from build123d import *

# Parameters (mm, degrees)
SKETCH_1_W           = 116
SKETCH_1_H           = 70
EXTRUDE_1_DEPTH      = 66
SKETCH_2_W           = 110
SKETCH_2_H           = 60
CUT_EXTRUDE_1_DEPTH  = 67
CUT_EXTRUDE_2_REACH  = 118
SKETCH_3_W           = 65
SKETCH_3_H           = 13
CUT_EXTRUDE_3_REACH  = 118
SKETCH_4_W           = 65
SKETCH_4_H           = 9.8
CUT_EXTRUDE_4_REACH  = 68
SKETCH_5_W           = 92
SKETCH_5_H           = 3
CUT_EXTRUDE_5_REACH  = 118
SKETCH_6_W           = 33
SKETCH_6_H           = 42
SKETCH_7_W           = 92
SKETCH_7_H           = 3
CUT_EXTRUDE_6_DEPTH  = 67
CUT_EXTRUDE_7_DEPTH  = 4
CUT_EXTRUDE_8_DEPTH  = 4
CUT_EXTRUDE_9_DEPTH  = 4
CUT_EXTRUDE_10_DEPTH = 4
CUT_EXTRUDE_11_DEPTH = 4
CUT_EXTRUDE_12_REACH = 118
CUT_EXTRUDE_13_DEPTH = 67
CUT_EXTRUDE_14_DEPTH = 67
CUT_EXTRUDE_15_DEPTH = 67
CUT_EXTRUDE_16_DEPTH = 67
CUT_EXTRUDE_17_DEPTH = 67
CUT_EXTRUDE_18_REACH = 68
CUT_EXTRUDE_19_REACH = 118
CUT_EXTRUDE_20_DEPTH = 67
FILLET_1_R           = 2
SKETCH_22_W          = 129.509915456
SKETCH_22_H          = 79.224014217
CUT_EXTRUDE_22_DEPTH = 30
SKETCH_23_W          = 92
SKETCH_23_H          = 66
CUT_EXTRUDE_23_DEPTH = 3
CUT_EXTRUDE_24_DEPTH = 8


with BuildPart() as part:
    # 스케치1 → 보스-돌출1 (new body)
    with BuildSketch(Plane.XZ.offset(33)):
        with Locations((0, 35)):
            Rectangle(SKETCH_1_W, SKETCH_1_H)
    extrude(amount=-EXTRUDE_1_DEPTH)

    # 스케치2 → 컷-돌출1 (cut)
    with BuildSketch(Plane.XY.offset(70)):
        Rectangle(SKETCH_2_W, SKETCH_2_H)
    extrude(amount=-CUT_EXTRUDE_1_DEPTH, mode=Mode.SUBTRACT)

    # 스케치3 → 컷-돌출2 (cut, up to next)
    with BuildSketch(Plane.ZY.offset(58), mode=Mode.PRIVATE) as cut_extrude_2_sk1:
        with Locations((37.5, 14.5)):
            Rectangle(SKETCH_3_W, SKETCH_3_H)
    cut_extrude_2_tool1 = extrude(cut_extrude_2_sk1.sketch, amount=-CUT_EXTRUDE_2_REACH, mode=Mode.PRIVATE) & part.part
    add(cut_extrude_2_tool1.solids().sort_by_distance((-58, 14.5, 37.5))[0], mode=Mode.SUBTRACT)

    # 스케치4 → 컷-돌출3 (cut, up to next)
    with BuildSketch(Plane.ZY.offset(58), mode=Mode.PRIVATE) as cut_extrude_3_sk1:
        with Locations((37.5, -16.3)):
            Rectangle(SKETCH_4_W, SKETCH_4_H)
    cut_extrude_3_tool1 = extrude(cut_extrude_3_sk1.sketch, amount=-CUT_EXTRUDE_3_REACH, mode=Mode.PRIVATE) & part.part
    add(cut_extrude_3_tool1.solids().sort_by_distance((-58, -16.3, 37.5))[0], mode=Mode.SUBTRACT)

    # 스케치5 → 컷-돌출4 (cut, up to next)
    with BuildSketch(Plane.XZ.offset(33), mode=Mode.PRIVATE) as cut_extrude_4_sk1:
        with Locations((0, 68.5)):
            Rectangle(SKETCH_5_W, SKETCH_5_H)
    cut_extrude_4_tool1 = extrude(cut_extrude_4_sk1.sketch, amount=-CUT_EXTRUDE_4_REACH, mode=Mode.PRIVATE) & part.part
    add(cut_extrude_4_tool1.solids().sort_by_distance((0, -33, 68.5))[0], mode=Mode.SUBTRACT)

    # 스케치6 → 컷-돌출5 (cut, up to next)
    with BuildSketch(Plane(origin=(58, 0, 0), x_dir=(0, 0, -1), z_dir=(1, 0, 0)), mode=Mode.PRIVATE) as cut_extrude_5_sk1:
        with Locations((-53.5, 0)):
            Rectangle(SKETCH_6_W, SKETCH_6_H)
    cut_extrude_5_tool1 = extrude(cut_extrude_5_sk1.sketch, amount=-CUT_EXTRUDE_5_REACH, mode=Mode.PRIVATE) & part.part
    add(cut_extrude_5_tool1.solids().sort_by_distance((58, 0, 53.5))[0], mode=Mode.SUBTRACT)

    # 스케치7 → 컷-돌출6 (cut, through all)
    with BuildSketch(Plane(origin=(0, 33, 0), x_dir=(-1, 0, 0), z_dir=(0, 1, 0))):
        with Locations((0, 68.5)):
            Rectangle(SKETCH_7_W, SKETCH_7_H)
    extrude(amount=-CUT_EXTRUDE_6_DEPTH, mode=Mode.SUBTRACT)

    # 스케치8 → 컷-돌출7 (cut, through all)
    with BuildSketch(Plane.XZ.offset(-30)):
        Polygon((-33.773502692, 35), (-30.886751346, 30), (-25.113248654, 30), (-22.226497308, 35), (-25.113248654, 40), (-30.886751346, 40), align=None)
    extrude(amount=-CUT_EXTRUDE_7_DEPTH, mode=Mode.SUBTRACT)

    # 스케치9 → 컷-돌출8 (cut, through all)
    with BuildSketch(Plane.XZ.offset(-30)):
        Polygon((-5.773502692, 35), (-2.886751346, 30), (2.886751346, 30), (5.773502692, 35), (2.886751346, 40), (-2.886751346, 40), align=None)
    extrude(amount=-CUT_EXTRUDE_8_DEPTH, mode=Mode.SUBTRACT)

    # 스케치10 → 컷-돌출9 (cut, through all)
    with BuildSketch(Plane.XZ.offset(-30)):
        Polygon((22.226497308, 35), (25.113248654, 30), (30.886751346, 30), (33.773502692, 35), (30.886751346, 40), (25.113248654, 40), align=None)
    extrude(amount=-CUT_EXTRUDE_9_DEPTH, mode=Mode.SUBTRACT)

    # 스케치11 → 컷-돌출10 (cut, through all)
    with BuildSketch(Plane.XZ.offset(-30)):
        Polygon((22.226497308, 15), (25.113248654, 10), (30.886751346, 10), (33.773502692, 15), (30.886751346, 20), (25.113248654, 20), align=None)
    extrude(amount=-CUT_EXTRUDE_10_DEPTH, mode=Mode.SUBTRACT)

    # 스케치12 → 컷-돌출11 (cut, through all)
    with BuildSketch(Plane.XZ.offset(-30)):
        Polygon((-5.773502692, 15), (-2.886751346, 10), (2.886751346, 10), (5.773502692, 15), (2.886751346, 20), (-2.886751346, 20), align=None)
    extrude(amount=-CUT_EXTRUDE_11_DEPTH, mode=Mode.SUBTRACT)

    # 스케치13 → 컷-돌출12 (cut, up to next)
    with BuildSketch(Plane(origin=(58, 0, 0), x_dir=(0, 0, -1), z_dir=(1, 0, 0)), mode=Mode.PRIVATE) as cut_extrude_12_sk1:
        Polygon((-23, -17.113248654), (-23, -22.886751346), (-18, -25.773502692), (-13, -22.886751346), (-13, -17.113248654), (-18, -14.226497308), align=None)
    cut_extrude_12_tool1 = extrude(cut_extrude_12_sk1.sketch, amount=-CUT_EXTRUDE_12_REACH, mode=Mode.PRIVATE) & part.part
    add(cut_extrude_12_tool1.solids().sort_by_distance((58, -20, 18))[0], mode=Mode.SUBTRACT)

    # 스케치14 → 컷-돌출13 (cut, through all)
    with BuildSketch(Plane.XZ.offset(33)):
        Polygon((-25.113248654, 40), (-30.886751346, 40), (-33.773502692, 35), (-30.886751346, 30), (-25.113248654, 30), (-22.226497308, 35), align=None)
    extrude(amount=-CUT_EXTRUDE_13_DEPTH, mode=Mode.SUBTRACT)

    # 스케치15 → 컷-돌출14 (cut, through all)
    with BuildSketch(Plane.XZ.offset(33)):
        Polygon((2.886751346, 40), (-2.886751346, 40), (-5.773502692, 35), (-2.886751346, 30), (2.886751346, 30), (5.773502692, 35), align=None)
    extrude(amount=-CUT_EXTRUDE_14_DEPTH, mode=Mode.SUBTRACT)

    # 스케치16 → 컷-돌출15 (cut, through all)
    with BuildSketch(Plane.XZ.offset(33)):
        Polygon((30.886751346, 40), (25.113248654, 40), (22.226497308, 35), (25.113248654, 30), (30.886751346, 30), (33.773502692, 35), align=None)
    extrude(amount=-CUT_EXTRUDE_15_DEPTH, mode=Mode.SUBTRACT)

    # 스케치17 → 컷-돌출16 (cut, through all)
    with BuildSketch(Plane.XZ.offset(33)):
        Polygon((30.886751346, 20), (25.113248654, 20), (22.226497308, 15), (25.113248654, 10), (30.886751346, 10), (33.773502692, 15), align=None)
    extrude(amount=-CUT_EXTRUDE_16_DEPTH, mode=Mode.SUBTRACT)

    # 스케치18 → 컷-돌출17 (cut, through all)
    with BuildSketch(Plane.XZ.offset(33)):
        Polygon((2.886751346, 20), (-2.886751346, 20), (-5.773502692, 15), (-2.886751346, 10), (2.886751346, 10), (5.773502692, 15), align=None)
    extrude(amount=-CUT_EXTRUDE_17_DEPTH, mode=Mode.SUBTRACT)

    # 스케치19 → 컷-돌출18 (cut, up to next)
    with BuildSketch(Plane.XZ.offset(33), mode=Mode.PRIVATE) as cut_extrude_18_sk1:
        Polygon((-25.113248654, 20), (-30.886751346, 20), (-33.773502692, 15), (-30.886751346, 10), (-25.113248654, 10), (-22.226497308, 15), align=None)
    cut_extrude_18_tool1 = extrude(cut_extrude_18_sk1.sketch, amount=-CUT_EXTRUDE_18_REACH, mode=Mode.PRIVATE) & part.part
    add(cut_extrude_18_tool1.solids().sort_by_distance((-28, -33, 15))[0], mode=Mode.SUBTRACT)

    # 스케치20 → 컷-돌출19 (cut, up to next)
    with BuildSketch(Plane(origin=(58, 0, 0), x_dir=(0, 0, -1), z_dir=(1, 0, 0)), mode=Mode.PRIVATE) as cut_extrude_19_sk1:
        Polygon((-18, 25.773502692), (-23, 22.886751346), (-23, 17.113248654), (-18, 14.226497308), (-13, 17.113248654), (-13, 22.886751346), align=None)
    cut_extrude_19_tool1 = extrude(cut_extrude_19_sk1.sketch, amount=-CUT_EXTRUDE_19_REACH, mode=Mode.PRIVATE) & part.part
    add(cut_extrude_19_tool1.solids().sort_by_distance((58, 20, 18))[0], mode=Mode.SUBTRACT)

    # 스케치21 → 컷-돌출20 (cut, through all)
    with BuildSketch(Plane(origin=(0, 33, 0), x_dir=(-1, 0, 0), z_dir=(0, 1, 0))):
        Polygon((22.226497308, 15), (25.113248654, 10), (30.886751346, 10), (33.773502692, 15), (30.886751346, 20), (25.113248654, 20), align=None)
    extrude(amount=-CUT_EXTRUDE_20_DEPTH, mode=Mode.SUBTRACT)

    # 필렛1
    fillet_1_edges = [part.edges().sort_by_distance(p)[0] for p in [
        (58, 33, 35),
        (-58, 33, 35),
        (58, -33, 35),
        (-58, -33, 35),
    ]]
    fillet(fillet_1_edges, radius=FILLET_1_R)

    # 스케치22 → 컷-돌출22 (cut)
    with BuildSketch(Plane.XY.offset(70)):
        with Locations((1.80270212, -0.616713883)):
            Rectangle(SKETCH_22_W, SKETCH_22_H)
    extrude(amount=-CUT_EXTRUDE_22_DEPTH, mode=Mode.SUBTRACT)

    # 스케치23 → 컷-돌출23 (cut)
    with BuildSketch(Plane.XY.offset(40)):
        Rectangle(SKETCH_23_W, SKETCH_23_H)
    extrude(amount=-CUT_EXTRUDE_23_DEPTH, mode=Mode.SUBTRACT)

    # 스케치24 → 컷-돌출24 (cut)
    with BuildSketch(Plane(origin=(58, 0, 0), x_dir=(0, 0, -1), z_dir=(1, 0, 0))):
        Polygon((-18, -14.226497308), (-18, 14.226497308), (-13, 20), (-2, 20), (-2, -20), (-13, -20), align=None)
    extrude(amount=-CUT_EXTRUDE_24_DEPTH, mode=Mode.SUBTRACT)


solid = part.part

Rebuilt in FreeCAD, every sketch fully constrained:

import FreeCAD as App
import Part
import Sketcher
Q = App.Units.Quantity


def edges_at(feature, points):
    """Names of the edges that pass closest to the given points."""
    edges = feature.Shape.Edges
    near = lambda p: min(range(len(edges)), key=lambda i: edges[i].distToShape(Part.Vertex(*p))[0])
    return sorted({f"Edge{near(p) + 1}" for p in points})


def add_polygon(sketch, points):
    """Adds a closed chain of lines whose ends are joined by coincident constraints."""
    first, n = sketch.GeometryCount, len(points)
    for a, b in zip(points, points[1:] + points[:1]):
        sketch.addGeometry(Part.LineSegment(App.Vector(*a, 0), App.Vector(*b, 0)), False)
    for i in range(n):
        sketch.addConstraint(Sketcher.Constraint("Coincident", first + i, 2, first + (i + 1) % n, 1))

doc = App.newDocument("Part")
body = doc.addObject("PartDesign::Body", "Body")

# Sketch on XZ plane
sketch1 = body.newObject("Sketcher::SketchObject", "Sketch")
sketch1.AttachmentSupport = (doc.getObject("XZ_Plane"), [""])
sketch1.MapMode = "FlatFace"
sketch1.AttachmentOffset = App.Placement(App.Vector(0, 0, 33), App.Rotation())
add_polygon(sketch1, [(-58, 70), (-58, 0), (58, 0), (58, 70)])  # lines 0-3
sketch1.addConstraint([
    Sketcher.Constraint("Vertical", 0),
    Sketcher.Constraint("Horizontal", 1),
    Sketcher.Constraint("Vertical", 2),
    Sketcher.Constraint("Horizontal", 3),
    Sketcher.Constraint("Symmetric", 0, 2, 1, 2, -1, 1),
    Sketcher.Constraint("DistanceX", 1, 1, 1, 2, Q("116 mm")),
    Sketcher.Constraint("DistanceY", 0, 2, 0, 1, Q("70 mm")),
])
pad1 = body.newObject("PartDesign::Pad", "Pad")
pad1.Profile = sketch1
pad1.Length = 66
pad1.Reversed = True

# Sketch on XY plane
sketch2 = body.newObject("Sketcher::SketchObject", "Sketch001")
sketch2.AttachmentSupport = (doc.getObject("XY_Plane"), [""])
sketch2.MapMode = "FlatFace"
sketch2.AttachmentOffset = App.Placement(App.Vector(0, 0, 70), App.Rotation())
add_polygon(sketch2, [(-55, 30), (-55, -30), (55, -30), (55, 30)])  # lines 0-3
sketch2.addConstraint([
    Sketcher.Constraint("Vertical", 0),
    Sketcher.Constraint("Horizontal", 1),
    Sketcher.Constraint("Vertical", 2),
    Sketcher.Constraint("Horizontal", 3),
    Sketcher.Constraint("Symmetric", 0, 2, 2, 2, -1, 1),
    Sketcher.Constraint("DistanceX", 1, 1, 1, 2, Q("110 mm")),
    Sketcher.Constraint("DistanceY", 0, 2, 0, 1, Q("60 mm")),
])
pocket1 = body.newObject("PartDesign::Pocket", "Pocket")
pocket1.Profile = sketch2
pocket1.Length = 67

# Sketch on YZ plane
sketch3 = body.newObject("Sketcher::SketchObject", "Sketch002")
sketch3.AttachmentSupport = (doc.getObject("YZ_Plane"), [""])
sketch3.MapMode = "FlatFace"
sketch3.AttachmentOffset = App.Placement(App.Vector(0, 0, -58), App.Rotation())
add_polygon(sketch3, [(21, 5), (8, 5), (8, 70), (21, 70)])  # lines 0-3
sketch3.addConstraint([
    Sketcher.Constraint("Horizontal", 0),
    Sketcher.Constraint("Vertical", 1),
    Sketcher.Constraint("Horizontal", 2),
    Sketcher.Constraint("Vertical", 3),
    Sketcher.Constraint("DistanceX", 0, 2, 0, 1, Q("13 mm")),
    Sketcher.Constraint("DistanceY", 1, 1, 1, 2, Q("65 mm")),
    Sketcher.Constraint("DistanceX", -1, 1, 0, 2, Q("8 mm")),
    Sketcher.Constraint("DistanceY", -1, 1, 0, 2, Q("5 mm")),
])
pocket2 = body.newObject("PartDesign::Pocket", "Pocket001")
pocket2.Profile = sketch3
pocket2.Type = "UpToFirst"
pocket2.Reversed = True

# Sketch on YZ plane
sketch4 = body.newObject("Sketcher::SketchObject", "Sketch003")
sketch4.AttachmentSupport = (doc.getObject("YZ_Plane"), [""])
sketch4.MapMode = "FlatFace"
sketch4.AttachmentOffset = App.Placement(App.Vector(0, 0, -58), App.Rotation())
add_polygon(sketch4, [(-11.4, 5), (-21.2, 5), (-21.2, 70), (-11.4, 70)])  # lines 0-3
sketch4.addConstraint([
    Sketcher.Constraint("Horizontal", 0),
    Sketcher.Constraint("Vertical", 1),
    Sketcher.Constraint("Horizontal", 2),
    Sketcher.Constraint("Vertical", 3),
    Sketcher.Constraint("DistanceY", 1, 1, 1, 2, Q("65 mm")),
    Sketcher.Constraint("DistanceX", 0, 2, 0, 1, Q("9.8 mm")),
    Sketcher.Constraint("DistanceY", -1, 1, 0, 2, Q("5 mm")),
    Sketcher.Constraint("DistanceX", 0, 2, -1, 1, Q("21.2 mm")),
])
pocket3 = body.newObject("PartDesign::Pocket", "Pocket002")
pocket3.Profile = sketch4
pocket3.Type = "UpToFirst"
pocket3.Reversed = True

# Sketch on XZ plane
sketch5 = body.newObject("Sketcher::SketchObject", "Sketch004")
sketch5.AttachmentSupport = (doc.getObject("XZ_Plane"), [""])
sketch5.MapMode = "FlatFace"
sketch5.AttachmentOffset = App.Placement(App.Vector(0, 0, 33), App.Rotation())
add_polygon(sketch5, [(-46, 70), (-46, 67), (46, 67), (46, 70)])  # lines 0-3
sketch5.addConstraint([
    Sketcher.Constraint("Vertical", 0),
    Sketcher.Constraint("Horizontal", 1),
    Sketcher.Constraint("Vertical", 2),
    Sketcher.Constraint("Horizontal", 3),
    Sketcher.Constraint("DistanceX", 1, 1, 1, 2, Q("92 mm")),
    Sketcher.Constraint("DistanceY", 0, 2, 0, 1, Q("3 mm")),
    Sketcher.Constraint("DistanceX", 0, 2, -1, 1, Q("46 mm")),
    Sketcher.Constraint("DistanceY", -1, 1, 0, 2, Q("67 mm")),
])
pocket4 = body.newObject("PartDesign::Pocket", "Pocket003")
pocket4.Profile = sketch5
pocket4.Type = "UpToFirst"

# Sketch on YZ plane
sketch6 = body.newObject("Sketcher::SketchObject", "Sketch005")
sketch6.AttachmentSupport = (doc.getObject("YZ_Plane"), [""])
sketch6.MapMode = "FlatFace"
sketch6.AttachmentOffset = App.Placement(App.Vector(0, 0, 58), App.Rotation())
add_polygon(sketch6, [(21, 70), (-21, 70), (-21, 37), (21, 37)])  # lines 0-3
sketch6.addConstraint([
    Sketcher.Constraint("Horizontal", 0),
    Sketcher.Constraint("Vertical", 1),
    Sketcher.Constraint("Horizontal", 2),
    Sketcher.Constraint("Vertical", 3),
    Sketcher.Constraint("DistanceX", 0, 2, 0, 1, Q("42 mm")),
    Sketcher.Constraint("DistanceY", 1, 2, 1, 1, Q("33 mm")),
    Sketcher.Constraint("DistanceX", 0, 2, -1, 1, Q("21 mm")),
    Sketcher.Constraint("DistanceY", -1, 1, 0, 2, Q("70 mm")),
])
pocket5 = body.newObject("PartDesign::Pocket", "Pocket004")
pocket5.Profile = sketch6
pocket5.Type = "UpToFirst"

# Sketch on XZ plane
sketch7 = body.newObject("Sketcher::SketchObject", "Sketch006")
sketch7.AttachmentSupport = (doc.getObject("XZ_Plane"), [""])
sketch7.MapMode = "FlatFace"
sketch7.AttachmentOffset = App.Placement(App.Vector(0, 0, -33), App.Rotation())
add_polygon(sketch7, [(46, 70), (46, 67), (-46, 67), (-46, 70)])  # lines 0-3
sketch7.addConstraint([
    Sketcher.Constraint("Vertical", 0),
    Sketcher.Constraint("Horizontal", 1),
    Sketcher.Constraint("Vertical", 2),
    Sketcher.Constraint("Horizontal", 3),
    Sketcher.Constraint("DistanceX", 1, 2, 1, 1, Q("92 mm")),
    Sketcher.Constraint("DistanceY", 0, 2, 0, 1, Q("3 mm")),
    Sketcher.Constraint("DistanceX", -1, 1, 0, 2, Q("46 mm")),
    Sketcher.Constraint("DistanceY", -1, 1, 0, 2, Q("67 mm")),
])
pocket6 = body.newObject("PartDesign::Pocket", "Pocket005")
pocket6.Profile = sketch7
pocket6.Type = "ThroughAll"
pocket6.Reversed = True

# Sketch on XZ plane
sketch8 = body.newObject("Sketcher::SketchObject", "Sketch007")
sketch8.AttachmentSupport = (doc.getObject("XZ_Plane"), [""])
sketch8.MapMode = "FlatFace"
sketch8.AttachmentOffset = App.Placement(App.Vector(0, 0, -30), App.Rotation())
add_polygon(sketch8, [(-33.773503, 35), (-30.886751, 30), (-25.113249, 30), (-22.226497, 35), (-25.113249, 40), (-30.886751, 40)])  # lines 0-5
sketch8.addConstraint([
    Sketcher.Constraint("Horizontal", 1),
    Sketcher.Constraint("Horizontal", 4),
    Sketcher.Constraint("Parallel", 0, 3),
    Sketcher.Constraint("Parallel", 2, 5),
    Sketcher.Constraint("Horizontal", 2, 2, 5, 2),
    Sketcher.Constraint("Vertical", 1, 2, 3, 2),
    Sketcher.Constraint("Vertical", 0, 2, 4, 2),
    Sketcher.Constraint("Angle", 0, Q("-60 deg")),
    Sketcher.Constraint("DistanceY", -1, 1, 0, 2, Q("30 mm")),
    Sketcher.Constraint("DistanceY", -1, 1, 2, 2, Q("35 mm")),
    Sketcher.Constraint("DistanceX", 1, 1, 1, 2, Q("5.773503 mm")),
    Sketcher.Constraint("DistanceX", 0, 2, -1, 1, Q("30.886751 mm")),
])
pocket7 = body.newObject("PartDesign::Pocket", "Pocket006")
pocket7.Profile = sketch8
pocket7.Type = "ThroughAll"

# Sketch on XZ plane
sketch9 = body.newObject("Sketcher::SketchObject", "Sketch008")
sketch9.AttachmentSupport = (doc.getObject("XZ_Plane"), [""])
sketch9.MapMode = "FlatFace"
sketch9.AttachmentOffset = App.Placement(App.Vector(0, 0, -30), App.Rotation())
add_polygon(sketch9, [(-5.773503, 35), (-2.886751, 30), (2.886751, 30), (5.773503, 35), (2.886751, 40), (-2.886751, 40)])  # lines 0-5
sketch9.addConstraint([
    Sketcher.Constraint("Horizontal", 1),
    Sketcher.Constraint("Horizontal", 4),
    Sketcher.Constraint("Symmetric", 2, 2, 5, 2, -2),
    Sketcher.Constraint("Parallel", 0, 3),
    Sketcher.Constraint("Parallel", 2, 5),
    Sketcher.Constraint("Vertical", 1, 2, 3, 2),
    Sketcher.Constraint("Vertical", 0, 2, 4, 2),
    Sketcher.Constraint("Angle", 0, Q("-60 deg")),
    Sketcher.Constraint("DistanceY", -1, 1, 0, 2, Q("30 mm")),
    Sketcher.Constraint("DistanceY", -1, 1, 2, 2, Q("35 mm")),
    Sketcher.Constraint("DistanceX", 1, 1, 1, 2, Q("5.773503 mm")),
])
pocket8 = body.newObject("PartDesign::Pocket", "Pocket007")
pocket8.Profile = sketch9
pocket8.Type = "ThroughAll"

# Sketch on XZ plane
sketch10 = body.newObject("Sketcher::SketchObject", "Sketch009")
sketch10.AttachmentSupport = (doc.getObject("XZ_Plane"), [""])
sketch10.MapMode = "FlatFace"
sketch10.AttachmentOffset = App.Placement(App.Vector(0, 0, -30), App.Rotation())
add_polygon(sketch10, [(22.226497, 35), (25.113249, 30), (30.886751, 30), (33.773503, 35), (30.886751, 40), (25.113249, 40)])  # lines 0-5
sketch10.addConstraint([
    Sketcher.Constraint("Horizontal", 1),
    Sketcher.Constraint("Horizontal", 4),
    Sketcher.Constraint("Parallel", 0, 3),
    Sketcher.Constraint("Parallel", 2, 5),
    Sketcher.Constraint("Horizontal", 2, 2, 5, 2),
    Sketcher.Constraint("Vertical", 1, 2, 3, 2),
    Sketcher.Constraint("Vertical", 0, 2, 4, 2),
    Sketcher.Constraint("Angle", 0, Q("-60 deg")),
    Sketcher.Constraint("DistanceY", -1, 1, 0, 2, Q("30 mm")),
    Sketcher.Constraint("DistanceY", -1, 1, 2, 2, Q("35 mm")),
    Sketcher.Constraint("DistanceX", 1, 1, 1, 2, Q("5.773503 mm")),
    Sketcher.Constraint("DistanceX", -1, 1, 0, 2, Q("25.113249 mm")),
])
pocket9 = body.newObject("PartDesign::Pocket", "Pocket008")
pocket9.Profile = sketch10
pocket9.Type = "ThroughAll"

# Sketch on XZ plane
sketch11 = body.newObject("Sketcher::SketchObject", "Sketch010")
sketch11.AttachmentSupport = (doc.getObject("XZ_Plane"), [""])
sketch11.MapMode = "FlatFace"
sketch11.AttachmentOffset = App.Placement(App.Vector(0, 0, -30), App.Rotation())
add_polygon(sketch11, [(22.226497, 15), (25.113249, 10), (30.886751, 10), (33.773503, 15), (30.886751, 20), (25.113249, 20)])  # lines 0-5
sketch11.addConstraint([
    Sketcher.Constraint("Horizontal", 1),
    Sketcher.Constraint("Horizontal", 4),
    Sketcher.Constraint("Parallel", 0, 3),
    Sketcher.Constraint("Parallel", 2, 5),
    Sketcher.Constraint("Horizontal", 2, 2, 5, 2),
    Sketcher.Constraint("Vertical", 1, 2, 3, 2),
    Sketcher.Constraint("Vertical", 0, 2, 4, 2),
    Sketcher.Constraint("Angle", 0, Q("-60 deg")),
    Sketcher.Constraint("DistanceY", -1, 1, 0, 2, Q("10 mm")),
    Sketcher.Constraint("DistanceY", -1, 1, 2, 2, Q("15 mm")),
    Sketcher.Constraint("DistanceX", 1, 1, 1, 2, Q("5.773503 mm")),
    Sketcher.Constraint("DistanceX", -1, 1, 0, 2, Q("25.113249 mm")),
])
pocket10 = body.newObject("PartDesign::Pocket", "Pocket009")
pocket10.Profile = sketch11
pocket10.Type = "ThroughAll"

# Sketch on XZ plane
sketch12 = body.newObject("Sketcher::SketchObject", "Sketch011")
sketch12.AttachmentSupport = (doc.getObject("XZ_Plane"), [""])
sketch12.MapMode = "FlatFace"
sketch12.AttachmentOffset = App.Placement(App.Vector(0, 0, -30), App.Rotation())
add_polygon(sketch12, [(-5.773503, 15), (-2.886751, 10), (2.886751, 10), (5.773503, 15), (2.886751, 20), (-2.886751, 20)])  # lines 0-5
sketch12.addConstraint([
    Sketcher.Constraint("Horizontal", 1),
    Sketcher.Constraint("Horizontal", 4),
    Sketcher.Constraint("Symmetric", 2, 2, 5, 2, -2),
    Sketcher.Constraint("Parallel", 0, 3),
    Sketcher.Constraint("Parallel", 2, 5),
    Sketcher.Constraint("Vertical", 1, 2, 3, 2),
    Sketcher.Constraint("Vertical", 0, 2, 4, 2),
    Sketcher.Constraint("Angle", 0, Q("-60 deg")),
    Sketcher.Constraint("DistanceY", -1, 1, 0, 2, Q("10 mm")),
    Sketcher.Constraint("DistanceY", -1, 1, 2, 2, Q("15 mm")),
    Sketcher.Constraint("DistanceX", 1, 1, 1, 2, Q("5.773503 mm")),
])
pocket11 = body.newObject("PartDesign::Pocket", "Pocket010")
pocket11.Profile = sketch12
pocket11.Type = "ThroughAll"

# Sketch on YZ plane
sketch13 = body.newObject("Sketcher::SketchObject", "Sketch012")
sketch13.AttachmentSupport = (doc.getObject("YZ_Plane"), [""])
sketch13.MapMode = "FlatFace"
sketch13.AttachmentOffset = App.Placement(App.Vector(0, 0, 58), App.Rotation())
add_polygon(sketch13, [(-17.113249, 23), (-22.886751, 23), (-25.773503, 18), (-22.886751, 13), (-17.113249, 13), (-14.226497, 18)])  # lines 0-5
sketch13.addConstraint([
    Sketcher.Constraint("Horizontal", 0),
    Sketcher.Constraint("Horizontal", 3),
    Sketcher.Constraint("Parallel", 1, 4),
    Sketcher.Constraint("Parallel", 2, 5),
    Sketcher.Constraint("Horizontal", 1, 2, 4, 2),
    Sketcher.Constraint("Vertical", 0, 2, 2, 2),
    Sketcher.Constraint("Vertical", 3, 2, 5, 2),
    Sketcher.Constraint("Angle", 1, Q("-120 deg")),
    Sketcher.Constraint("DistanceY", -1, 1, 0, 2, Q("23 mm")),
    Sketcher.Constraint("DistanceY", -1, 1, 1, 2, Q("18 mm")),
    Sketcher.Constraint("DistanceX", 0, 2, 0, 1, Q("5.773503 mm")),
    Sketcher.Constraint("DistanceX", 0, 2, -1, 1, Q("22.886751 mm")),
])
pocket12 = body.newObject("PartDesign::Pocket", "Pocket011")
pocket12.Profile = sketch13
pocket12.Type = "UpToFirst"

# Sketch on XZ plane
sketch14 = body.newObject("Sketcher::SketchObject", "Sketch013")
sketch14.AttachmentSupport = (doc.getObject("XZ_Plane"), [""])
sketch14.MapMode = "FlatFace"
sketch14.AttachmentOffset = App.Placement(App.Vector(0, 0, 33), App.Rotation())
add_polygon(sketch14, [(-25.113249, 40), (-30.886751, 40), (-33.773503, 35), (-30.886751, 30), (-25.113249, 30), (-22.226497, 35)])  # lines 0-5
sketch14.addConstraint([
    Sketcher.Constraint("Horizontal", 0),
    Sketcher.Constraint("Horizontal", 3),
    Sketcher.Constraint("Parallel", 1, 4),
    Sketcher.Constraint("Parallel", 2, 5),
    Sketcher.Constraint("Horizontal", 1, 2, 4, 2),
    Sketcher.Constraint("Vertical", 0, 2, 2, 2),
    Sketcher.Constraint("Vertical", 3, 2, 5, 2),
    Sketcher.Constraint("Angle", 1, Q("-120 deg")),
    Sketcher.Constraint("DistanceY", -1, 1, 0, 2, Q("40 mm")),
    Sketcher.Constraint("DistanceY", -1, 1, 1, 2, Q("35 mm")),
    Sketcher.Constraint("DistanceX", 0, 2, 0, 1, Q("5.773503 mm")),
    Sketcher.Constraint("DistanceX", 0, 2, -1, 1, Q("30.886751 mm")),
])
pocket13 = body.newObject("PartDesign::Pocket", "Pocket012")
pocket13.Profile = sketch14
pocket13.Type = "ThroughAll"

# Sketch on XZ plane
sketch15 = body.newObject("Sketcher::SketchObject", "Sketch014")
sketch15.AttachmentSupport = (doc.getObject("XZ_Plane"), [""])
sketch15.MapMode = "FlatFace"
sketch15.AttachmentOffset = App.Placement(App.Vector(0, 0, 33), App.Rotation())
add_polygon(sketch15, [(2.886751, 40), (-2.886751, 40), (-5.773503, 35), (-2.886751, 30), (2.886751, 30), (5.773503, 35)])  # lines 0-5
sketch15.addConstraint([
    Sketcher.Constraint("Horizontal", 0),
    Sketcher.Constraint("Horizontal", 3),
    Sketcher.Constraint("Symmetric", 1, 2, 4, 2, -2),
    Sketcher.Constraint("Parallel", 1, 4),
    Sketcher.Constraint("Parallel", 2, 5),
    Sketcher.Constraint("Vertical", 0, 2, 2, 2),
    Sketcher.Constraint("Vertical", 3, 2, 5, 2),
    Sketcher.Constraint("Angle", 1, Q("-120 deg")),
    Sketcher.Constraint("DistanceY", -1, 1, 0, 2, Q("40 mm")),
    Sketcher.Constraint("DistanceY", -1, 1, 1, 2, Q("35 mm")),
    Sketcher.Constraint("DistanceX", 0, 2, 0, 1, Q("5.773503 mm")),
])
pocket14 = body.newObject("PartDesign::Pocket", "Pocket013")
pocket14.Profile = sketch15
pocket14.Type = "ThroughAll"

# Sketch on XZ plane
sketch16 = body.newObject("Sketcher::SketchObject", "Sketch015")
sketch16.AttachmentSupport = (doc.getObject("XZ_Plane"), [""])
sketch16.MapMode = "FlatFace"
sketch16.AttachmentOffset = App.Placement(App.Vector(0, 0, 33), App.Rotation())
add_polygon(sketch16, [(30.886751, 40), (25.113249, 40), (22.226497, 35), (25.113249, 30), (30.886751, 30), (33.773503, 35)])  # lines 0-5
sketch16.addConstraint([
    Sketcher.Constraint("Horizontal", 0),
    Sketcher.Constraint("Horizontal", 3),
    Sketcher.Constraint("Parallel", 1, 4),
    Sketcher.Constraint("Parallel", 2, 5),
    Sketcher.Constraint("Horizontal", 1, 2, 4, 2),
    Sketcher.Constraint("Vertical", 0, 2, 2, 2),
    Sketcher.Constraint("Vertical", 3, 2, 5, 2),
    Sketcher.Constraint("Angle", 1, Q("-120 deg")),
    Sketcher.Constraint("DistanceY", -1, 1, 0, 2, Q("40 mm")),
    Sketcher.Constraint("DistanceY", -1, 1, 1, 2, Q("35 mm")),
    Sketcher.Constraint("DistanceX", 0, 2, 0, 1, Q("5.773503 mm")),
    Sketcher.Constraint("DistanceX", -1, 1, 0, 2, Q("25.113249 mm")),
])
pocket15 = body.newObject("PartDesign::Pocket", "Pocket014")
pocket15.Profile = sketch16
pocket15.Type = "ThroughAll"

# Sketch on XZ plane
sketch17 = body.newObject("Sketcher::SketchObject", "Sketch016")
sketch17.AttachmentSupport = (doc.getObject("XZ_Plane"), [""])
sketch17.MapMode = "FlatFace"
sketch17.AttachmentOffset = App.Placement(App.Vector(0, 0, 33), App.Rotation())
add_polygon(sketch17, [(30.886751, 20), (25.113249, 20), (22.226497, 15), (25.113249, 10), (30.886751, 10), (33.773503, 15)])  # lines 0-5
sketch17.addConstraint([
    Sketcher.Constraint("Horizontal", 0),
    Sketcher.Constraint("Horizontal", 3),
    Sketcher.Constraint("Parallel", 1, 4),
    Sketcher.Constraint("Parallel", 2, 5),
    Sketcher.Constraint("Horizontal", 1, 2, 4, 2),
    Sketcher.Constraint("Vertical", 0, 2, 2, 2),
    Sketcher.Constraint("Vertical", 3, 2, 5, 2),
    Sketcher.Constraint("Angle", 1, Q("-120 deg")),
    Sketcher.Constraint("DistanceY", -1, 1, 0, 2, Q("20 mm")),
    Sketcher.Constraint("DistanceY", -1, 1, 1, 2, Q("15 mm")),
    Sketcher.Constraint("DistanceX", 0, 2, 0, 1, Q("5.773503 mm")),
    Sketcher.Constraint("DistanceX", -1, 1, 0, 2, Q("25.113249 mm")),
])
pocket16 = body.newObject("PartDesign::Pocket", "Pocket015")
pocket16.Profile = sketch17
pocket16.Type = "ThroughAll"

# Sketch on XZ plane
sketch18 = body.newObject("Sketcher::SketchObject", "Sketch017")
sketch18.AttachmentSupport = (doc.getObject("XZ_Plane"), [""])
sketch18.MapMode = "FlatFace"
sketch18.AttachmentOffset = App.Placement(App.Vector(0, 0, 33), App.Rotation())
add_polygon(sketch18, [(2.886751, 20), (-2.886751, 20), (-5.773503, 15), (-2.886751, 10), (2.886751, 10), (5.773503, 15)])  # lines 0-5
sketch18.addConstraint([
    Sketcher.Constraint("Horizontal", 0),
    Sketcher.Constraint("Horizontal", 3),
    Sketcher.Constraint("Symmetric", 1, 2, 4, 2, -2),
    Sketcher.Constraint("Parallel", 1, 4),
    Sketcher.Constraint("Parallel", 2, 5),
    Sketcher.Constraint("Vertical", 0, 2, 2, 2),
    Sketcher.Constraint("Vertical", 3, 2, 5, 2),
    Sketcher.Constraint("Angle", 1, Q("-120 deg")),
    Sketcher.Constraint("DistanceY", -1, 1, 0, 2, Q("20 mm")),
    Sketcher.Constraint("DistanceY", -1, 1, 1, 2, Q("15 mm")),
    Sketcher.Constraint("DistanceX", 0, 2, 0, 1, Q("5.773503 mm")),
])
pocket17 = body.newObject("PartDesign::Pocket", "Pocket016")
pocket17.Profile = sketch18
pocket17.Type = "ThroughAll"

# Sketch on XZ plane
sketch19 = body.newObject("Sketcher::SketchObject", "Sketch018")
sketch19.AttachmentSupport = (doc.getObject("XZ_Plane"), [""])
sketch19.MapMode = "FlatFace"
sketch19.AttachmentOffset = App.Placement(App.Vector(0, 0, 33), App.Rotation())
add_polygon(sketch19, [(-25.113249, 20), (-30.886751, 20), (-33.773503, 15), (-30.886751, 10), (-25.113249, 10), (-22.226497, 15)])  # lines 0-5
sketch19.addConstraint([
    Sketcher.Constraint("Horizontal", 0),
    Sketcher.Constraint("Horizontal", 3),
    Sketcher.Constraint("Parallel", 1, 4),
    Sketcher.Constraint("Parallel", 2, 5),
    Sketcher.Constraint("Horizontal", 1, 2, 4, 2),
    Sketcher.Constraint("Vertical", 0, 2, 2, 2),
    Sketcher.Constraint("Vertical", 3, 2, 5, 2),
    Sketcher.Constraint("Angle", 1, Q("-120 deg")),
    Sketcher.Constraint("DistanceY", -1, 1, 0, 2, Q("20 mm")),
    Sketcher.Constraint("DistanceY", -1, 1, 1, 2, Q("15 mm")),
    Sketcher.Constraint("DistanceX", 0, 2, 0, 1, Q("5.773503 mm")),
    Sketcher.Constraint("DistanceX", 0, 2, -1, 1, Q("30.886751 mm")),
])
pocket18 = body.newObject("PartDesign::Pocket", "Pocket017")
pocket18.Profile = sketch19
pocket18.Type = "UpToFirst"

# Sketch on YZ plane
sketch20 = body.newObject("Sketcher::SketchObject", "Sketch019")
sketch20.AttachmentSupport = (doc.getObject("YZ_Plane"), [""])
sketch20.MapMode = "FlatFace"
sketch20.AttachmentOffset = App.Placement(App.Vector(0, 0, 58), App.Rotation())
add_polygon(sketch20, [(25.773503, 18), (22.886751, 23), (17.113249, 23), (14.226497, 18), (17.113249, 13), (22.886751, 13)])  # lines 0-5
sketch20.addConstraint([
    Sketcher.Constraint("Horizontal", 1),
    Sketcher.Constraint("Horizontal", 4),
    Sketcher.Constraint("Parallel", 0, 3),
    Sketcher.Constraint("Parallel", 2, 5),
    Sketcher.Constraint("Horizontal", 2, 2, 5, 2),
    Sketcher.Constraint("Vertical", 1, 2, 3, 2),
    Sketcher.Constraint("Vertical", 0, 2, 4, 2),
    Sketcher.Constraint("Angle", 0, Q("120 deg")),
    Sketcher.Constraint("DistanceY", -1, 1, 0, 2, Q("23 mm")),
    Sketcher.Constraint("DistanceY", -1, 1, 2, 2, Q("18 mm")),
    Sketcher.Constraint("DistanceX", 1, 2, 1, 1, Q("5.773503 mm")),
    Sketcher.Constraint("DistanceX", -1, 1, 0, 2, Q("22.886751 mm")),
])
pocket19 = body.newObject("PartDesign::Pocket", "Pocket018")
pocket19.Profile = sketch20
pocket19.Type = "UpToFirst"

# Sketch on XZ plane
sketch21 = body.newObject("Sketcher::SketchObject", "Sketch020")
sketch21.AttachmentSupport = (doc.getObject("XZ_Plane"), [""])
sketch21.MapMode = "FlatFace"
sketch21.AttachmentOffset = App.Placement(App.Vector(0, 0, -33), App.Rotation())
add_polygon(sketch21, [(-22.226497, 15), (-25.113249, 10), (-30.886751, 10), (-33.773503, 15), (-30.886751, 20), (-25.113249, 20)])  # lines 0-5
sketch21.addConstraint([
    Sketcher.Constraint("Horizontal", 1),
    Sketcher.Constraint("Horizontal", 4),
    Sketcher.Constraint("Parallel", 0, 3),
    Sketcher.Constraint("Parallel", 2, 5),
    Sketcher.Constraint("Horizontal", 2, 2, 5, 2),
    Sketcher.Constraint("Vertical", 1, 2, 3, 2),
    Sketcher.Constraint("Vertical", 0, 2, 4, 2),
    Sketcher.Constraint("Angle", 0, Q("-120 deg")),
    Sketcher.Constraint("DistanceY", -1, 1, 0, 2, Q("10 mm")),
    Sketcher.Constraint("DistanceY", -1, 1, 2, 2, Q("15 mm")),
    Sketcher.Constraint("DistanceX", 1, 2, 1, 1, Q("5.773503 mm")),
    Sketcher.Constraint("DistanceX", 0, 2, -1, 1, Q("25.113249 mm")),
])
pocket20 = body.newObject("PartDesign::Pocket", "Pocket019")
pocket20.Profile = sketch21
pocket20.Type = "ThroughAll"
pocket20.Reversed = True
doc.recompute()

fillet = body.newObject("PartDesign::Fillet", "Fillet")
fillet.Base = (pocket20, edges_at(pocket20, [
    (58, 33, 35),
    (-58, 33, 35),
    (58, -33, 35),
    (-58, -33, 35),
]))
fillet.Radius = 2

# Sketch on XY plane
sketch22 = body.newObject("Sketcher::SketchObject", "Sketch021")
sketch22.AttachmentSupport = (doc.getObject("XY_Plane"), [""])
sketch22.MapMode = "FlatFace"
sketch22.AttachmentOffset = App.Placement(App.Vector(0, 0, 70), App.Rotation())
add_polygon(sketch22, [(-62.952256, 38.995293), (-62.952256, -40.228721), (66.55766, -40.228721), (66.55766, 38.995293)])  # lines 0-3
sketch22.addConstraint([
    Sketcher.Constraint("Vertical", 0),
    Sketcher.Constraint("Horizontal", 1),
    Sketcher.Constraint("Vertical", 2),
    Sketcher.Constraint("Horizontal", 3),
    Sketcher.Constraint("DistanceX", 1, 1, 1, 2, Q("129.509915 mm")),
    Sketcher.Constraint("DistanceY", 0, 2, 0, 1, Q("79.224014 mm")),
    Sketcher.Constraint("DistanceY", 0, 2, -1, 1, Q("40.228721 mm")),
    Sketcher.Constraint("DistanceX", -1, 1, 1, 2, Q("66.55766 mm")),
])
pocket21 = body.newObject("PartDesign::Pocket", "Pocket020")
pocket21.Profile = sketch22
pocket21.Length = 30

# Sketch on XY plane
sketch23 = body.newObject("Sketcher::SketchObject", "Sketch022")
sketch23.AttachmentSupport = (doc.getObject("XY_Plane"), [""])
sketch23.MapMode = "FlatFace"
sketch23.AttachmentOffset = App.Placement(App.Vector(0, 0, 40), App.Rotation())
add_polygon(sketch23, [(-46, 33), (-46, -33), (46, -33), (46, 33)])  # lines 0-3
sketch23.addConstraint([
    Sketcher.Constraint("Vertical", 0),
    Sketcher.Constraint("Horizontal", 1),
    Sketcher.Constraint("Vertical", 2),
    Sketcher.Constraint("Horizontal", 3),
    Sketcher.Constraint("Symmetric", 0, 2, 2, 2, -1, 1),
    Sketcher.Constraint("DistanceX", 1, 1, 1, 2, Q("92 mm")),
    Sketcher.Constraint("DistanceY", 0, 2, 0, 1, Q("66 mm")),
])
pocket22 = body.newObject("PartDesign::Pocket", "Pocket021")
pocket22.Profile = sketch23
pocket22.Length = 3

# Sketch on YZ plane
sketch24 = body.newObject("Sketcher::SketchObject", "Sketch023")
sketch24.AttachmentSupport = (doc.getObject("YZ_Plane"), [""])
sketch24.MapMode = "FlatFace"
sketch24.AttachmentOffset = App.Placement(App.Vector(0, 0, 58), App.Rotation())
add_polygon(sketch24, [(14.226497, 18), (-14.226497, 18), (-20, 13), (-20, 2), (20, 2), (20, 13)])  # lines 0-5
sketch24.addConstraint([
    Sketcher.Constraint("Horizontal", 0),
    Sketcher.Constraint("Vertical", 2),
    Sketcher.Constraint("Horizontal", 3),
    Sketcher.Constraint("Vertical", 4),
    Sketcher.Constraint("Symmetric", 1, 2, 4, 2, -2),
    Sketcher.Constraint("Equal", 1, 5),
    Sketcher.Constraint("DistanceX", 3, 1, 3, 2, Q("40 mm")),
    Sketcher.Constraint("DistanceY", 2, 2, 2, 1, Q("11 mm")),
    Sketcher.Constraint("DistanceY", -1, 1, 0, 2, Q("18 mm")),
    Sketcher.Constraint("DistanceY", -1, 1, 1, 2, Q("13 mm")),
    Sketcher.Constraint("DistanceX", 0, 2, 0, 1, Q("28.452995 mm")),
])
pocket23 = body.newObject("PartDesign::Pocket", "Pocket022")
pocket23.Profile = sketch24
pocket23.Length = 8

doc.recompute()
